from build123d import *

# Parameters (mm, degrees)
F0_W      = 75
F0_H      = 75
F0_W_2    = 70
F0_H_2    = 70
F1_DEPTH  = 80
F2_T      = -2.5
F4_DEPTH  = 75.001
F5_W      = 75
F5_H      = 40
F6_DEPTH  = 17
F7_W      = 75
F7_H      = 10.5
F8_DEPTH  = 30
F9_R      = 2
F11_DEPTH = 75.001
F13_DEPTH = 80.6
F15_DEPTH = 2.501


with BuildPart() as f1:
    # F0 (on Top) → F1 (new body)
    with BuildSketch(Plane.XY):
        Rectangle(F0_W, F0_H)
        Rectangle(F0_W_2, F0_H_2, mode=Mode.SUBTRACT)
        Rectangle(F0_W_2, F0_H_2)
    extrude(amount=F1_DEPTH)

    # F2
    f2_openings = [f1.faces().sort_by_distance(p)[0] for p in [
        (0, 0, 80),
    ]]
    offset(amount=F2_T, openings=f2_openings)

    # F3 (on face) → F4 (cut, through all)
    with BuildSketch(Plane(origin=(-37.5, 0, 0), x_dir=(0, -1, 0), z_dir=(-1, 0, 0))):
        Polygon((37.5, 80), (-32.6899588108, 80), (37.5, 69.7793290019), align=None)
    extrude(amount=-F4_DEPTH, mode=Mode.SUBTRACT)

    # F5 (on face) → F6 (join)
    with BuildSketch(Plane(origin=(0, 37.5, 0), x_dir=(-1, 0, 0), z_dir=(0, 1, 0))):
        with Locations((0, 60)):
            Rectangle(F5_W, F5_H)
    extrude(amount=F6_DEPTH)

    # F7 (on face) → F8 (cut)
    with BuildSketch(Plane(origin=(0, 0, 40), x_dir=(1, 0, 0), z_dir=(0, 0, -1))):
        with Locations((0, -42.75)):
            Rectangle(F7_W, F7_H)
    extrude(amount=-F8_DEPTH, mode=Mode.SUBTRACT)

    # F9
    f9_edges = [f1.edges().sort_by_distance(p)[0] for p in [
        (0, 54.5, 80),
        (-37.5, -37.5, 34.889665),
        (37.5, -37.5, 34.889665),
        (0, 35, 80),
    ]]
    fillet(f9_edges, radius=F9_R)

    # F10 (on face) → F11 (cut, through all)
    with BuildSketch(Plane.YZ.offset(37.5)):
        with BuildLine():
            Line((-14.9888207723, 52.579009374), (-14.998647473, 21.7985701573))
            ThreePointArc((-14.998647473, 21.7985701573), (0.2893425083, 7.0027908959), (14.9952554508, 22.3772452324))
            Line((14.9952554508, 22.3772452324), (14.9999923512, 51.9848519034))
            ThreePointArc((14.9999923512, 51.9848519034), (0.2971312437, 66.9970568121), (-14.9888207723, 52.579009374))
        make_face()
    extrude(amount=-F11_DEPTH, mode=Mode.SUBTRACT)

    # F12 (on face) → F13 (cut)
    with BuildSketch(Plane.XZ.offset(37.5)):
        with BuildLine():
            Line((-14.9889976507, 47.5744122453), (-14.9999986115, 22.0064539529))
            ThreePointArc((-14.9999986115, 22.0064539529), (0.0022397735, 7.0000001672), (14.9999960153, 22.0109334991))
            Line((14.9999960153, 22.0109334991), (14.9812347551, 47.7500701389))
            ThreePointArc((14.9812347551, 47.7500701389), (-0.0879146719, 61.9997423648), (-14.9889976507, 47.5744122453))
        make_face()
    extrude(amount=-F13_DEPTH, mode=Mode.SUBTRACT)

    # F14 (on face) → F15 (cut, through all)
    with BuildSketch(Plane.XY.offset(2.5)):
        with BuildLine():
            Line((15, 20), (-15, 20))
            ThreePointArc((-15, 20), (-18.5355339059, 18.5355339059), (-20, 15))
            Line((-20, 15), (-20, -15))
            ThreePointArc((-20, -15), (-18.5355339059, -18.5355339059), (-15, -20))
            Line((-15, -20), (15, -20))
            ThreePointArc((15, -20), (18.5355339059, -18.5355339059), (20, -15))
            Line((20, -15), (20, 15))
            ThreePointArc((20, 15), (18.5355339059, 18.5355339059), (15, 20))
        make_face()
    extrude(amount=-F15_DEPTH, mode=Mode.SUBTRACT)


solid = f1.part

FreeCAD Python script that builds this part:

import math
import FreeCAD as App
import Part
import Sketcher
from FreeCAD import Vector
Q = App.Units.Quantity


def edges_at(feature, points):
    """Names of the edges that pass closest to the given points."""
    edges = feature.Shape.Edges
    near = lambda p: min(range(len(edges)), key=lambda i: edges[i].distToShape(Part.Vertex(*p))[0])
    return sorted({f"Edge{near(p) + 1}" for p in points})


def faces_at(feature, points):
    """Names of the faces that lie closest to the given points."""
    faces = feature.Shape.Faces
    near = lambda p: min(range(len(faces)), key=lambda i: faces[i].distToShape(Part.Vertex(*p))[0])
    return sorted({f"Face{near(p) + 1}" for p in points})

doc = App.newDocument("Part")
params = doc.addObject("Spreadsheet::Sheet", "Params")
for row, (alias, value) in enumerate([
    ("sketch1_width", "75 mm"),
    ("pad1_length", "80 mm"),
    ("thickness_wall", "2.5 mm"),
    ("sketch3_width", "75 mm"),
    ("sketch3_height", "40 mm"),
    ("pad2_length", "17 mm"),
    ("sketch4_width", "75 mm"),
    ("sketch4_height", "10.5 mm"),
    ("pocket2_length", "30 mm"),
    ("fillet_radius", "2 mm"),
    ("sketch5_radius", "15 mm"),
    ("sketch6_radius", "15 mm"),
    ("pocket4_length", "80.6 mm"),
    ("sketch7_radius", "5 mm"),
    ("sketch7_width", "30 mm"),
], start=1):
    params.set(f"A{row}", alias)
    params.set(f"B{row}", "=" + value)
    params.setAlias(f"B{row}", alias)

body = doc.addObject("PartDesign::Body", "Body")

sketch1 = body.newObject("Sketcher::SketchObject", "Sketch")
sketch1.AttachmentSupport = (doc.getObject("XY_Plane"), [""])
sketch1.MapMode = "FlatFace"
sketch1.addGeometry(Part.LineSegment(Vector(-38, 38, 0), Vector(-38, -38, 0)), False)
sketch1.addGeometry(Part.LineSegment(Vector(-38, -38, 0), Vector(38, -38, 0)), False)
sketch1.addGeometry(Part.LineSegment(Vector(38, -38, 0), Vector(38, 38, 0)), False)
sketch1.addGeometry(Part.LineSegment(Vector(38, 38, 0), Vector(-38, 38, 0)), False)
sketch1.addConstraint(Sketcher.Constraint("Coincident", 0, 2, 1, 1))
sketch1.addConstraint(Sketcher.Constraint("Coincident", 1, 2, 2, 1))
sketch1.addConstraint(Sketcher.Constraint("Coincident", 2, 2, 3, 1))
sketch1.addConstraint(Sketcher.Constraint("Coincident", 3, 2, 0, 1))
sketch1.addConstraint(Sketcher.Constraint("Vertical", 0))
sketch1.addConstraint(Sketcher.Constraint("Horizontal", 1))
sketch1.addConstraint(Sketcher.Constraint("Vertical", 2))
sketch1.addConstraint(Sketcher.Constraint("Horizontal", 3))
sketch1.addConstraint(Sketcher.Constraint("Symmetric", 0, 2, 2, 2, -1, 1))
sketch1.addConstraint(Sketcher.Constraint("Equal", 3, 0))
sketch1.addConstraint(Sketcher.Constraint("DistanceX", 1, 1, 1, 2, Q("75 mm")))
sketch1.setExpression("Constraints[10]", "Params.sketch1_width")
pad1 = body.newObject("PartDesign::Pad", "Pad")
pad1.Profile = sketch1
pad1.setExpression("Length", "Params.pad1_length")
doc.recompute()

thickness = body.newObject("PartDesign::Thickness", "Thickness")
thickness.Base = (pad1, faces_at(pad1, [(0, 0, 80)]))
thickness.setExpression("Value", "Params.thickness_wall")
thickness.Reversed = True
thickness.Join = "Arc"

sketch2 = body.newObject("Sketcher::SketchObject", "Sketch001")
sketch2.AttachmentSupport = (doc.getObject("YZ_Plane"), [""])
sketch2.MapMode = "FlatFace"
sketch2.AttachmentOffset = App.Placement(Vector(0, 0, -37.5), App.Rotation())
sketch2.addGeometry(Part.LineSegment(Vector(-38, 80, 0), Vector(33, 80, 0)), False)
sketch2.addGeometry(Part.LineSegment(Vector(33, 80, 0), Vector(-38, 70, 0)), False)
sketch2.addGeometry(Part.LineSegment(Vector(-38, 70, 0), Vector(-38, 80, 0)), False)
sketch2.addConstraint(Sketcher.Constraint("Coincident", 0, 2, 1, 1))
sketch2.addConstraint(Sketcher.Constraint("Coincident", 1, 2, 2, 1))
sketch2.addConstraint(Sketcher.Constraint("Coincident", 2, 2, 0, 1))
sketch2.addConstraint(Sketcher.Constraint("Horizontal", 0))
sketch2.addConstraint(Sketcher.Constraint("Vertical", 2))
sketch2.addConstraint(Sketcher.Constraint("DistanceY", -1, 1, 0, 2, Q("80 mm")))
sketch2.addConstraint(Sketcher.Constraint("DistanceX", 1, 2, -1, 1, Q("37.5 mm")))
sketch2.addConstraint(Sketcher.Constraint("DistanceX", 0, 1, 0, 2, Q("70.189959 mm")))
sketch2.addConstraint(Sketcher.Constraint("DistanceY", 2, 1, 2, 2, Q("10.220671 mm")))
pocket1 = body.newObject("PartDesign::Pocket", "Pocket")
pocket1.Profile = sketch2
pocket1.Type = "ThroughAll"
pocket1.Reversed = True

sketch3 = body.newObject("Sketcher::SketchObject", "Sketch002")
sketch3.AttachmentSupport = (doc.getObject("XZ_Plane"), [""])
sketch3.MapMode = "FlatFace"
sketch3.AttachmentOffset = App.Placement(Vector(0, 0, -37.5), App.Rotation())
sketch3.addGeometry(Part.LineSegment(Vector(38, 80, 0), Vector(38, 40, 0)), False)
sketch3.addGeometry(Part.LineSegment(Vector(38, 40, 0), Vector(-38, 40, 0)), False)
sketch3.addGeometry(Part.LineSegment(Vector(-38, 40, 0), Vector(-38, 80, 0)), False)
sketch3.addGeometry(Part.LineSegment(Vector(-38, 80, 0), Vector(38, 80, 0)), False)
sketch3.addConstraint(Sketcher.Constraint("Coincident", 0, 2, 1, 1))
sketch3.addConstraint(Sketcher.Constraint("Coincident", 1, 2, 2, 1))
sketch3.addConstraint(Sketcher.Constraint("Coincident", 2, 2, 3, 1))
sketch3.addConstraint(Sketcher.Constraint("Coincident", 3, 2, 0, 1))
sketch3.addConstraint(Sketcher.Constraint("Vertical", 0))
sketch3.addConstraint(Sketcher.Constraint("Horizontal", 1))
sketch3.addConstraint(Sketcher.Constraint("Vertical", 2))
sketch3.addConstraint(Sketcher.Constraint("Horizontal", 3))
sketch3.addConstraint(Sketcher.Constraint("DistanceX", 1, 2, 1, 1, Q("75 mm")))
sketch3.addConstraint(Sketcher.Constraint("DistanceY", 0, 2, 0, 1, Q("40 mm")))
sketch3.addConstraint(Sketcher.Constraint("DistanceY", -1, 1, 0, 2, Q("40 mm")))
sketch3.addConstraint(Sketcher.Constraint("DistanceX", -1, 1, 0, 2, Q("37.5 mm")))
sketch3.setExpression("Constraints[8]", "Params.sketch3_width")
sketch3.setExpression("Constraints[9]", "Params.sketch3_height")
pad2 = body.newObject("PartDesign::Pad", "Pad001")
pad2.Profile = sketch3
pad2.setExpression("Length", "Params.pad2_length")
pad2.Reversed = True

sketch4 = body.newObject("Sketcher::SketchObject", "Sketch003")
sketch4.AttachmentSupport = (doc.getObject("XY_Plane"), [""])
sketch4.MapMode = "FlatFace"
sketch4.AttachmentOffset = App.Placement(Vector(0, 0, 40), App.Rotation())
sketch4.addGeometry(Part.LineSegment(Vector(-38, 38, 0), Vector(-38, 48, 0)), False)
sketch4.addGeometry(Part.LineSegment(Vector(-38, 48, 0), Vector(38, 48, 0)), False)
sketch4.addGeometry(Part.LineSegment(Vector(38, 48, 0), Vector(38, 38, 0)), False)
sketch4.addGeometry(Part.LineSegment(Vector(38, 38, 0), Vector(-38, 38, 0)), False)
sketch4.addConstraint(Sketcher.Constraint("Coincident", 0, 2, 1, 1))
sketch4.addConstraint(Sketcher.Constraint("Coincident", 1, 2, 2, 1))
sketch4.addConstraint(Sketcher.Constraint("Coincident", 2, 2, 3, 1))
sketch4.addConstraint(Sketcher.Constraint("Coincident", 3, 2, 0, 1))
sketch4.addConstraint(Sketcher.Constraint("Vertical", 0))
sketch4.addConstraint(Sketcher.Constraint("Horizontal", 1))
sketch4.addConstraint(Sketcher.Constraint("Vertical", 2))
sketch4.addConstraint(Sketcher.Constraint("Horizontal", 3))
sketch4.addConstraint(Sketcher.Constraint("DistanceX", 1, 1, 1, 2, Q("75 mm")))
sketch4.addConstraint(Sketcher.Constraint("DistanceY", 0, 1, 0, 2, Q("10.5 mm")))
sketch4.addConstraint(Sketcher.Constraint("DistanceY", -1, 1, 0, 2, Q("48 mm")))
sketch4.addConstraint(Sketcher.Constraint("DistanceX", 0, 2, -1, 1, Q("37.5 mm")))
sketch4.setExpression("Constraints[8]", "Params.sketch4_width")
sketch4.setExpression("Constraints[9]", "Params.sketch4_height")
pocket2 = body.newObject("PartDesign::Pocket", "Pocket001")
pocket2.Profile = sketch4
pocket2.setExpression("Length", "Params.pocket2_length")
pocket2.Reversed = True
doc.recompute()

fillet = body.newObject("PartDesign::Fillet", "Fillet")
fillet.Base = (pocket2, edges_at(pocket2, [
    (0, 54.5, 80),
    (-37.5, -37.5, 34.89),
    (37.5, -37.5, 34.89),
    (0, 35, 80),
]))
fillet.setExpression("Radius", "Params.fillet_radius")

sketch5 = body.newObject("Sketcher::SketchObject", "Sketch004")
sketch5.AttachmentSupport = (doc.getObject("YZ_Plane"), [""])
sketch5.MapMode = "FlatFace"
sketch5.AttachmentOffset = App.Placement(Vector(0, 0, 37.5), App.Rotation())
sketch5.addGeometry(Part.LineSegment(Vector(-15, 53, 0), Vector(-15, 22, 0)), False)
sketch5.addGeometry(Part.ArcOfCircle(Part.Circle(Vector(0, 22, 0), Vector(0, 0, 1), 15), math.radians(-179), math.radians(1)), False)
sketch5.addGeometry(Part.LineSegment(Vector(15, 22, 0), Vector(15, 52, 0)), False)
sketch5.addGeometry(Part.ArcOfCircle(Part.Circle(Vector(0, 52, 0), Vector(0, 0, 1), 15), math.radians(0), math.radians(178)), False)
sketch5.addConstraint(Sketcher.Constraint("Coincident", 0, 2, 1, 1))
sketch5.addConstraint(Sketcher.Constraint("Coincident", 1, 2, 2, 1))
sketch5.addConstraint(Sketcher.Constraint("Coincident", 2, 2, 3, 1))
sketch5.addConstraint(Sketcher.Constraint("Coincident", 3, 2, 0, 1))
sketch5.addConstraint(Sketcher.Constraint("Equal", 1, 3))
sketch5.addConstraint(Sketcher.Constraint("PointOnObject", 1, 3, -2))
sketch5.addConstraint(Sketcher.Constraint("PointOnObject", 3, 3, -2))
sketch5.addConstraint(Sketcher.Constraint("Radius", 1, Q("15 mm")))
sketch5.addConstraint(Sketcher.Constraint("DistanceY", -1, 1, 1, 3, Q("22 mm")))
sketch5.addConstraint(Sketcher.Constraint("DistanceY", -1, 1, 3, 3, Q("52 mm")))
sketch5.addConstraint(Sketcher.Constraint("Distance", 0, Q("30.780441 mm")))
sketch5.addConstraint(Sketcher.Constraint("DistanceY", -1, 1, 0, 2, Q("21.79857 mm")))
sketch5.addConstraint(Sketcher.Constraint("DistanceY", -1, 1, 2, 2, Q("51.984852 mm")))
sketch5.addConstraint(Sketcher.Constraint("Distance", 2, Q("29.607607 mm")))
sketch5.setExpression("Constraints[7]", "Params.sketch5_radius")
pocket3 = body.newObject("PartDesign::Pocket", "Pocket002")
pocket3.Profile = sketch5
pocket3.Type = "ThroughAll"

sketch6 = body.newObject("Sketcher::SketchObject", "Sketch005")
sketch6.AttachmentSupport = (doc.getObject("XZ_Plane"), [""])
sketch6.MapMode = "FlatFace"
sketch6.AttachmentOffset = App.Placement(Vector(0, 0, 37.5), App.Rotation())
sketch6.addGeometry(Part.LineSegment(Vector(-15, 48, 0), Vector(-15, 22, 0)), False)
sketch6.addGeometry(Part.ArcOfCircle(Part.Circle(Vector(0, 22, 0), Vector(0, 0, 1), 15), math.radians(180), math.radians(360)), False)
sketch6.addGeometry(Part.LineSegment(Vector(15, 22, 0), Vector(15, 48, 0)), False)
sketch6.addGeometry(Part.ArcOfCircle(Part.Circle(Vector(0, 47, 0), Vector(0, 0, 1), 15), math.radians(3), math.radians(178)), False)
sketch6.addConstraint(Sketcher.Constraint("Tangent", 0, 2, 1, 1))
sketch6.addConstraint(Sketcher.Constraint("Tangent", 1, 2, 2, 1))
sketch6.addConstraint(Sketcher.Constraint("Coincident", 2, 2, 3, 1))
sketch6.addConstraint(Sketcher.Constraint("Coincident", 3, 2, 0, 1))
sketch6.addConstraint(Sketcher.Constraint("Equal", 1, 3))
sketch6.addConstraint(Sketcher.Constraint("PointOnObject", 1, 3, -2))
sketch6.addConstraint(Sketcher.Constraint("PointOnObject", 3, 3, -2))
sketch6.addConstraint(Sketcher.Constraint("Radius", 1, Q("15 mm")))
sketch6.addConstraint(Sketcher.Constraint("DistanceY", -1, 1, 1, 3, Q("22 mm")))
sketch6.addConstraint(Sketcher.Constraint("DistanceY", -1, 1, 3, 3, Q("47 mm")))
sketch6.addConstraint(Sketcher.Constraint("DistanceX", 0, 2, 3, 2, Q("0.011001 mm")))
sketch6.addConstraint(Sketcher.Constraint("DistanceY", -1, 1, 2, 2, Q("47.75007 mm")))
sketch6.setExpression("Constraints[7]", "Params.sketch6_radius")
pocket4 = body.newObject("PartDesign::Pocket", "Pocket003")
pocket4.Profile = sketch6
pocket4.setExpression("Length", "Params.pocket4_length")

sketch7 = body.newObject("Sketcher::SketchObject", "Sketch006")
sketch7.AttachmentSupport = (doc.getObject("XY_Plane"), [""])
sketch7.MapMode = "FlatFace"
sketch7.AttachmentOffset = App.Placement(Vector(0, 0, 2.5), App.Rotation())
sketch7.addGeometry(Part.LineSegment(Vector(15, 20, 0), Vector(-15, 20, 0)), False)
sketch7.addGeometry(Part.ArcOfCircle(Part.Circle(Vector(-15, 15, 0), Vector(0, 0, 1), 5), math.radians(90), math.radians(180)), False)
sketch7.addGeometry(Part.LineSegment(Vector(-20, 15, 0), Vector(-20, -15, 0)), False)
sketch7.addGeometry(Part.ArcOfCircle(Part.Circle(Vector(-15, -15, 0), Vector(0, 0, 1), 5), math.radians(180), math.radians(270)), False)
sketch7.addGeometry(Part.LineSegment(Vector(-15, -20, 0), Vector(15, -20, 0)), False)
sketch7.addGeometry(Part.ArcOfCircle(Part.Circle(Vector(15, -15, 0), Vector(0, 0, 1), 5), math.radians(-90), math.radians(0)), False)
sketch7.addGeometry(Part.LineSegment(Vector(20, -15, 0), Vector(20, 15, 0)), False)
sketch7.addGeometry(Part.ArcOfCircle(Part.Circle(Vector(15, 15, 0), Vector(0, 0, 1), 5), math.radians(0), math.radians(90)), False)
sketch7.addConstraint(Sketcher.Constraint("Tangent", 0, 2, 1, 1))
sketch7.addConstraint(Sketcher.Constraint("Tangent", 1, 2, 2, 1))
sketch7.addConstraint(Sketcher.Constraint("Tangent", 2, 2, 3, 1))
sketch7.addConstraint(Sketcher.Constraint("Tangent", 3, 2, 4, 1))
sketch7.addConstraint(Sketcher.Constraint("Tangent", 4, 2, 5, 1))
sketch7.addConstraint(Sketcher.Constraint("Tangent", 5, 2, 6, 1))
sketch7.addConstraint(Sketcher.Constraint("Tangent", 6, 2, 7, 1))
sketch7.addConstraint(Sketcher.Constraint("Tangent", 7, 2, 0, 1))
sketch7.addConstraint(Sketcher.Constraint("Horizontal", 0))
sketch7.addConstraint(Sketcher.Constraint("Vertical", 2))
sketch7.addConstraint(Sketcher.Constraint("Horizontal", 4))
sketch7.addConstraint(Sketcher.Constraint("Vertical", 6))
sketch7.addConstraint(Sketcher.Constraint("Equal", 1, 3))
sketch7.addConstraint(Sketcher.Constraint("Equal", 3, 5))
sketch7.addConstraint(Sketcher.Constraint("Equal", 5, 7))
sketch7.addConstraint(Sketcher.Constraint("Symmetric", 1, 3, 5, 3, -1, 1))
sketch7.addConstraint(Sketcher.Constraint("Equal", 4, 2))
sketch7.addConstraint(Sketcher.Constraint("Radius", 1, Q("5 mm")))
sketch7.addConstraint(Sketcher.Constraint("DistanceX", 0, 2, 0, 1, Q("30 mm")))
sketch7.setExpression("Constraints[17]", "Params.sketch7_radius")
sketch7.setExpression("Constraints[18]", "Params.sketch7_width")
pocket5 = body.newObject("PartDesign::Pocket", "Pocket004")
pocket5.Profile = sketch7
pocket5.Type = "ThroughAll"

doc.recompute()
